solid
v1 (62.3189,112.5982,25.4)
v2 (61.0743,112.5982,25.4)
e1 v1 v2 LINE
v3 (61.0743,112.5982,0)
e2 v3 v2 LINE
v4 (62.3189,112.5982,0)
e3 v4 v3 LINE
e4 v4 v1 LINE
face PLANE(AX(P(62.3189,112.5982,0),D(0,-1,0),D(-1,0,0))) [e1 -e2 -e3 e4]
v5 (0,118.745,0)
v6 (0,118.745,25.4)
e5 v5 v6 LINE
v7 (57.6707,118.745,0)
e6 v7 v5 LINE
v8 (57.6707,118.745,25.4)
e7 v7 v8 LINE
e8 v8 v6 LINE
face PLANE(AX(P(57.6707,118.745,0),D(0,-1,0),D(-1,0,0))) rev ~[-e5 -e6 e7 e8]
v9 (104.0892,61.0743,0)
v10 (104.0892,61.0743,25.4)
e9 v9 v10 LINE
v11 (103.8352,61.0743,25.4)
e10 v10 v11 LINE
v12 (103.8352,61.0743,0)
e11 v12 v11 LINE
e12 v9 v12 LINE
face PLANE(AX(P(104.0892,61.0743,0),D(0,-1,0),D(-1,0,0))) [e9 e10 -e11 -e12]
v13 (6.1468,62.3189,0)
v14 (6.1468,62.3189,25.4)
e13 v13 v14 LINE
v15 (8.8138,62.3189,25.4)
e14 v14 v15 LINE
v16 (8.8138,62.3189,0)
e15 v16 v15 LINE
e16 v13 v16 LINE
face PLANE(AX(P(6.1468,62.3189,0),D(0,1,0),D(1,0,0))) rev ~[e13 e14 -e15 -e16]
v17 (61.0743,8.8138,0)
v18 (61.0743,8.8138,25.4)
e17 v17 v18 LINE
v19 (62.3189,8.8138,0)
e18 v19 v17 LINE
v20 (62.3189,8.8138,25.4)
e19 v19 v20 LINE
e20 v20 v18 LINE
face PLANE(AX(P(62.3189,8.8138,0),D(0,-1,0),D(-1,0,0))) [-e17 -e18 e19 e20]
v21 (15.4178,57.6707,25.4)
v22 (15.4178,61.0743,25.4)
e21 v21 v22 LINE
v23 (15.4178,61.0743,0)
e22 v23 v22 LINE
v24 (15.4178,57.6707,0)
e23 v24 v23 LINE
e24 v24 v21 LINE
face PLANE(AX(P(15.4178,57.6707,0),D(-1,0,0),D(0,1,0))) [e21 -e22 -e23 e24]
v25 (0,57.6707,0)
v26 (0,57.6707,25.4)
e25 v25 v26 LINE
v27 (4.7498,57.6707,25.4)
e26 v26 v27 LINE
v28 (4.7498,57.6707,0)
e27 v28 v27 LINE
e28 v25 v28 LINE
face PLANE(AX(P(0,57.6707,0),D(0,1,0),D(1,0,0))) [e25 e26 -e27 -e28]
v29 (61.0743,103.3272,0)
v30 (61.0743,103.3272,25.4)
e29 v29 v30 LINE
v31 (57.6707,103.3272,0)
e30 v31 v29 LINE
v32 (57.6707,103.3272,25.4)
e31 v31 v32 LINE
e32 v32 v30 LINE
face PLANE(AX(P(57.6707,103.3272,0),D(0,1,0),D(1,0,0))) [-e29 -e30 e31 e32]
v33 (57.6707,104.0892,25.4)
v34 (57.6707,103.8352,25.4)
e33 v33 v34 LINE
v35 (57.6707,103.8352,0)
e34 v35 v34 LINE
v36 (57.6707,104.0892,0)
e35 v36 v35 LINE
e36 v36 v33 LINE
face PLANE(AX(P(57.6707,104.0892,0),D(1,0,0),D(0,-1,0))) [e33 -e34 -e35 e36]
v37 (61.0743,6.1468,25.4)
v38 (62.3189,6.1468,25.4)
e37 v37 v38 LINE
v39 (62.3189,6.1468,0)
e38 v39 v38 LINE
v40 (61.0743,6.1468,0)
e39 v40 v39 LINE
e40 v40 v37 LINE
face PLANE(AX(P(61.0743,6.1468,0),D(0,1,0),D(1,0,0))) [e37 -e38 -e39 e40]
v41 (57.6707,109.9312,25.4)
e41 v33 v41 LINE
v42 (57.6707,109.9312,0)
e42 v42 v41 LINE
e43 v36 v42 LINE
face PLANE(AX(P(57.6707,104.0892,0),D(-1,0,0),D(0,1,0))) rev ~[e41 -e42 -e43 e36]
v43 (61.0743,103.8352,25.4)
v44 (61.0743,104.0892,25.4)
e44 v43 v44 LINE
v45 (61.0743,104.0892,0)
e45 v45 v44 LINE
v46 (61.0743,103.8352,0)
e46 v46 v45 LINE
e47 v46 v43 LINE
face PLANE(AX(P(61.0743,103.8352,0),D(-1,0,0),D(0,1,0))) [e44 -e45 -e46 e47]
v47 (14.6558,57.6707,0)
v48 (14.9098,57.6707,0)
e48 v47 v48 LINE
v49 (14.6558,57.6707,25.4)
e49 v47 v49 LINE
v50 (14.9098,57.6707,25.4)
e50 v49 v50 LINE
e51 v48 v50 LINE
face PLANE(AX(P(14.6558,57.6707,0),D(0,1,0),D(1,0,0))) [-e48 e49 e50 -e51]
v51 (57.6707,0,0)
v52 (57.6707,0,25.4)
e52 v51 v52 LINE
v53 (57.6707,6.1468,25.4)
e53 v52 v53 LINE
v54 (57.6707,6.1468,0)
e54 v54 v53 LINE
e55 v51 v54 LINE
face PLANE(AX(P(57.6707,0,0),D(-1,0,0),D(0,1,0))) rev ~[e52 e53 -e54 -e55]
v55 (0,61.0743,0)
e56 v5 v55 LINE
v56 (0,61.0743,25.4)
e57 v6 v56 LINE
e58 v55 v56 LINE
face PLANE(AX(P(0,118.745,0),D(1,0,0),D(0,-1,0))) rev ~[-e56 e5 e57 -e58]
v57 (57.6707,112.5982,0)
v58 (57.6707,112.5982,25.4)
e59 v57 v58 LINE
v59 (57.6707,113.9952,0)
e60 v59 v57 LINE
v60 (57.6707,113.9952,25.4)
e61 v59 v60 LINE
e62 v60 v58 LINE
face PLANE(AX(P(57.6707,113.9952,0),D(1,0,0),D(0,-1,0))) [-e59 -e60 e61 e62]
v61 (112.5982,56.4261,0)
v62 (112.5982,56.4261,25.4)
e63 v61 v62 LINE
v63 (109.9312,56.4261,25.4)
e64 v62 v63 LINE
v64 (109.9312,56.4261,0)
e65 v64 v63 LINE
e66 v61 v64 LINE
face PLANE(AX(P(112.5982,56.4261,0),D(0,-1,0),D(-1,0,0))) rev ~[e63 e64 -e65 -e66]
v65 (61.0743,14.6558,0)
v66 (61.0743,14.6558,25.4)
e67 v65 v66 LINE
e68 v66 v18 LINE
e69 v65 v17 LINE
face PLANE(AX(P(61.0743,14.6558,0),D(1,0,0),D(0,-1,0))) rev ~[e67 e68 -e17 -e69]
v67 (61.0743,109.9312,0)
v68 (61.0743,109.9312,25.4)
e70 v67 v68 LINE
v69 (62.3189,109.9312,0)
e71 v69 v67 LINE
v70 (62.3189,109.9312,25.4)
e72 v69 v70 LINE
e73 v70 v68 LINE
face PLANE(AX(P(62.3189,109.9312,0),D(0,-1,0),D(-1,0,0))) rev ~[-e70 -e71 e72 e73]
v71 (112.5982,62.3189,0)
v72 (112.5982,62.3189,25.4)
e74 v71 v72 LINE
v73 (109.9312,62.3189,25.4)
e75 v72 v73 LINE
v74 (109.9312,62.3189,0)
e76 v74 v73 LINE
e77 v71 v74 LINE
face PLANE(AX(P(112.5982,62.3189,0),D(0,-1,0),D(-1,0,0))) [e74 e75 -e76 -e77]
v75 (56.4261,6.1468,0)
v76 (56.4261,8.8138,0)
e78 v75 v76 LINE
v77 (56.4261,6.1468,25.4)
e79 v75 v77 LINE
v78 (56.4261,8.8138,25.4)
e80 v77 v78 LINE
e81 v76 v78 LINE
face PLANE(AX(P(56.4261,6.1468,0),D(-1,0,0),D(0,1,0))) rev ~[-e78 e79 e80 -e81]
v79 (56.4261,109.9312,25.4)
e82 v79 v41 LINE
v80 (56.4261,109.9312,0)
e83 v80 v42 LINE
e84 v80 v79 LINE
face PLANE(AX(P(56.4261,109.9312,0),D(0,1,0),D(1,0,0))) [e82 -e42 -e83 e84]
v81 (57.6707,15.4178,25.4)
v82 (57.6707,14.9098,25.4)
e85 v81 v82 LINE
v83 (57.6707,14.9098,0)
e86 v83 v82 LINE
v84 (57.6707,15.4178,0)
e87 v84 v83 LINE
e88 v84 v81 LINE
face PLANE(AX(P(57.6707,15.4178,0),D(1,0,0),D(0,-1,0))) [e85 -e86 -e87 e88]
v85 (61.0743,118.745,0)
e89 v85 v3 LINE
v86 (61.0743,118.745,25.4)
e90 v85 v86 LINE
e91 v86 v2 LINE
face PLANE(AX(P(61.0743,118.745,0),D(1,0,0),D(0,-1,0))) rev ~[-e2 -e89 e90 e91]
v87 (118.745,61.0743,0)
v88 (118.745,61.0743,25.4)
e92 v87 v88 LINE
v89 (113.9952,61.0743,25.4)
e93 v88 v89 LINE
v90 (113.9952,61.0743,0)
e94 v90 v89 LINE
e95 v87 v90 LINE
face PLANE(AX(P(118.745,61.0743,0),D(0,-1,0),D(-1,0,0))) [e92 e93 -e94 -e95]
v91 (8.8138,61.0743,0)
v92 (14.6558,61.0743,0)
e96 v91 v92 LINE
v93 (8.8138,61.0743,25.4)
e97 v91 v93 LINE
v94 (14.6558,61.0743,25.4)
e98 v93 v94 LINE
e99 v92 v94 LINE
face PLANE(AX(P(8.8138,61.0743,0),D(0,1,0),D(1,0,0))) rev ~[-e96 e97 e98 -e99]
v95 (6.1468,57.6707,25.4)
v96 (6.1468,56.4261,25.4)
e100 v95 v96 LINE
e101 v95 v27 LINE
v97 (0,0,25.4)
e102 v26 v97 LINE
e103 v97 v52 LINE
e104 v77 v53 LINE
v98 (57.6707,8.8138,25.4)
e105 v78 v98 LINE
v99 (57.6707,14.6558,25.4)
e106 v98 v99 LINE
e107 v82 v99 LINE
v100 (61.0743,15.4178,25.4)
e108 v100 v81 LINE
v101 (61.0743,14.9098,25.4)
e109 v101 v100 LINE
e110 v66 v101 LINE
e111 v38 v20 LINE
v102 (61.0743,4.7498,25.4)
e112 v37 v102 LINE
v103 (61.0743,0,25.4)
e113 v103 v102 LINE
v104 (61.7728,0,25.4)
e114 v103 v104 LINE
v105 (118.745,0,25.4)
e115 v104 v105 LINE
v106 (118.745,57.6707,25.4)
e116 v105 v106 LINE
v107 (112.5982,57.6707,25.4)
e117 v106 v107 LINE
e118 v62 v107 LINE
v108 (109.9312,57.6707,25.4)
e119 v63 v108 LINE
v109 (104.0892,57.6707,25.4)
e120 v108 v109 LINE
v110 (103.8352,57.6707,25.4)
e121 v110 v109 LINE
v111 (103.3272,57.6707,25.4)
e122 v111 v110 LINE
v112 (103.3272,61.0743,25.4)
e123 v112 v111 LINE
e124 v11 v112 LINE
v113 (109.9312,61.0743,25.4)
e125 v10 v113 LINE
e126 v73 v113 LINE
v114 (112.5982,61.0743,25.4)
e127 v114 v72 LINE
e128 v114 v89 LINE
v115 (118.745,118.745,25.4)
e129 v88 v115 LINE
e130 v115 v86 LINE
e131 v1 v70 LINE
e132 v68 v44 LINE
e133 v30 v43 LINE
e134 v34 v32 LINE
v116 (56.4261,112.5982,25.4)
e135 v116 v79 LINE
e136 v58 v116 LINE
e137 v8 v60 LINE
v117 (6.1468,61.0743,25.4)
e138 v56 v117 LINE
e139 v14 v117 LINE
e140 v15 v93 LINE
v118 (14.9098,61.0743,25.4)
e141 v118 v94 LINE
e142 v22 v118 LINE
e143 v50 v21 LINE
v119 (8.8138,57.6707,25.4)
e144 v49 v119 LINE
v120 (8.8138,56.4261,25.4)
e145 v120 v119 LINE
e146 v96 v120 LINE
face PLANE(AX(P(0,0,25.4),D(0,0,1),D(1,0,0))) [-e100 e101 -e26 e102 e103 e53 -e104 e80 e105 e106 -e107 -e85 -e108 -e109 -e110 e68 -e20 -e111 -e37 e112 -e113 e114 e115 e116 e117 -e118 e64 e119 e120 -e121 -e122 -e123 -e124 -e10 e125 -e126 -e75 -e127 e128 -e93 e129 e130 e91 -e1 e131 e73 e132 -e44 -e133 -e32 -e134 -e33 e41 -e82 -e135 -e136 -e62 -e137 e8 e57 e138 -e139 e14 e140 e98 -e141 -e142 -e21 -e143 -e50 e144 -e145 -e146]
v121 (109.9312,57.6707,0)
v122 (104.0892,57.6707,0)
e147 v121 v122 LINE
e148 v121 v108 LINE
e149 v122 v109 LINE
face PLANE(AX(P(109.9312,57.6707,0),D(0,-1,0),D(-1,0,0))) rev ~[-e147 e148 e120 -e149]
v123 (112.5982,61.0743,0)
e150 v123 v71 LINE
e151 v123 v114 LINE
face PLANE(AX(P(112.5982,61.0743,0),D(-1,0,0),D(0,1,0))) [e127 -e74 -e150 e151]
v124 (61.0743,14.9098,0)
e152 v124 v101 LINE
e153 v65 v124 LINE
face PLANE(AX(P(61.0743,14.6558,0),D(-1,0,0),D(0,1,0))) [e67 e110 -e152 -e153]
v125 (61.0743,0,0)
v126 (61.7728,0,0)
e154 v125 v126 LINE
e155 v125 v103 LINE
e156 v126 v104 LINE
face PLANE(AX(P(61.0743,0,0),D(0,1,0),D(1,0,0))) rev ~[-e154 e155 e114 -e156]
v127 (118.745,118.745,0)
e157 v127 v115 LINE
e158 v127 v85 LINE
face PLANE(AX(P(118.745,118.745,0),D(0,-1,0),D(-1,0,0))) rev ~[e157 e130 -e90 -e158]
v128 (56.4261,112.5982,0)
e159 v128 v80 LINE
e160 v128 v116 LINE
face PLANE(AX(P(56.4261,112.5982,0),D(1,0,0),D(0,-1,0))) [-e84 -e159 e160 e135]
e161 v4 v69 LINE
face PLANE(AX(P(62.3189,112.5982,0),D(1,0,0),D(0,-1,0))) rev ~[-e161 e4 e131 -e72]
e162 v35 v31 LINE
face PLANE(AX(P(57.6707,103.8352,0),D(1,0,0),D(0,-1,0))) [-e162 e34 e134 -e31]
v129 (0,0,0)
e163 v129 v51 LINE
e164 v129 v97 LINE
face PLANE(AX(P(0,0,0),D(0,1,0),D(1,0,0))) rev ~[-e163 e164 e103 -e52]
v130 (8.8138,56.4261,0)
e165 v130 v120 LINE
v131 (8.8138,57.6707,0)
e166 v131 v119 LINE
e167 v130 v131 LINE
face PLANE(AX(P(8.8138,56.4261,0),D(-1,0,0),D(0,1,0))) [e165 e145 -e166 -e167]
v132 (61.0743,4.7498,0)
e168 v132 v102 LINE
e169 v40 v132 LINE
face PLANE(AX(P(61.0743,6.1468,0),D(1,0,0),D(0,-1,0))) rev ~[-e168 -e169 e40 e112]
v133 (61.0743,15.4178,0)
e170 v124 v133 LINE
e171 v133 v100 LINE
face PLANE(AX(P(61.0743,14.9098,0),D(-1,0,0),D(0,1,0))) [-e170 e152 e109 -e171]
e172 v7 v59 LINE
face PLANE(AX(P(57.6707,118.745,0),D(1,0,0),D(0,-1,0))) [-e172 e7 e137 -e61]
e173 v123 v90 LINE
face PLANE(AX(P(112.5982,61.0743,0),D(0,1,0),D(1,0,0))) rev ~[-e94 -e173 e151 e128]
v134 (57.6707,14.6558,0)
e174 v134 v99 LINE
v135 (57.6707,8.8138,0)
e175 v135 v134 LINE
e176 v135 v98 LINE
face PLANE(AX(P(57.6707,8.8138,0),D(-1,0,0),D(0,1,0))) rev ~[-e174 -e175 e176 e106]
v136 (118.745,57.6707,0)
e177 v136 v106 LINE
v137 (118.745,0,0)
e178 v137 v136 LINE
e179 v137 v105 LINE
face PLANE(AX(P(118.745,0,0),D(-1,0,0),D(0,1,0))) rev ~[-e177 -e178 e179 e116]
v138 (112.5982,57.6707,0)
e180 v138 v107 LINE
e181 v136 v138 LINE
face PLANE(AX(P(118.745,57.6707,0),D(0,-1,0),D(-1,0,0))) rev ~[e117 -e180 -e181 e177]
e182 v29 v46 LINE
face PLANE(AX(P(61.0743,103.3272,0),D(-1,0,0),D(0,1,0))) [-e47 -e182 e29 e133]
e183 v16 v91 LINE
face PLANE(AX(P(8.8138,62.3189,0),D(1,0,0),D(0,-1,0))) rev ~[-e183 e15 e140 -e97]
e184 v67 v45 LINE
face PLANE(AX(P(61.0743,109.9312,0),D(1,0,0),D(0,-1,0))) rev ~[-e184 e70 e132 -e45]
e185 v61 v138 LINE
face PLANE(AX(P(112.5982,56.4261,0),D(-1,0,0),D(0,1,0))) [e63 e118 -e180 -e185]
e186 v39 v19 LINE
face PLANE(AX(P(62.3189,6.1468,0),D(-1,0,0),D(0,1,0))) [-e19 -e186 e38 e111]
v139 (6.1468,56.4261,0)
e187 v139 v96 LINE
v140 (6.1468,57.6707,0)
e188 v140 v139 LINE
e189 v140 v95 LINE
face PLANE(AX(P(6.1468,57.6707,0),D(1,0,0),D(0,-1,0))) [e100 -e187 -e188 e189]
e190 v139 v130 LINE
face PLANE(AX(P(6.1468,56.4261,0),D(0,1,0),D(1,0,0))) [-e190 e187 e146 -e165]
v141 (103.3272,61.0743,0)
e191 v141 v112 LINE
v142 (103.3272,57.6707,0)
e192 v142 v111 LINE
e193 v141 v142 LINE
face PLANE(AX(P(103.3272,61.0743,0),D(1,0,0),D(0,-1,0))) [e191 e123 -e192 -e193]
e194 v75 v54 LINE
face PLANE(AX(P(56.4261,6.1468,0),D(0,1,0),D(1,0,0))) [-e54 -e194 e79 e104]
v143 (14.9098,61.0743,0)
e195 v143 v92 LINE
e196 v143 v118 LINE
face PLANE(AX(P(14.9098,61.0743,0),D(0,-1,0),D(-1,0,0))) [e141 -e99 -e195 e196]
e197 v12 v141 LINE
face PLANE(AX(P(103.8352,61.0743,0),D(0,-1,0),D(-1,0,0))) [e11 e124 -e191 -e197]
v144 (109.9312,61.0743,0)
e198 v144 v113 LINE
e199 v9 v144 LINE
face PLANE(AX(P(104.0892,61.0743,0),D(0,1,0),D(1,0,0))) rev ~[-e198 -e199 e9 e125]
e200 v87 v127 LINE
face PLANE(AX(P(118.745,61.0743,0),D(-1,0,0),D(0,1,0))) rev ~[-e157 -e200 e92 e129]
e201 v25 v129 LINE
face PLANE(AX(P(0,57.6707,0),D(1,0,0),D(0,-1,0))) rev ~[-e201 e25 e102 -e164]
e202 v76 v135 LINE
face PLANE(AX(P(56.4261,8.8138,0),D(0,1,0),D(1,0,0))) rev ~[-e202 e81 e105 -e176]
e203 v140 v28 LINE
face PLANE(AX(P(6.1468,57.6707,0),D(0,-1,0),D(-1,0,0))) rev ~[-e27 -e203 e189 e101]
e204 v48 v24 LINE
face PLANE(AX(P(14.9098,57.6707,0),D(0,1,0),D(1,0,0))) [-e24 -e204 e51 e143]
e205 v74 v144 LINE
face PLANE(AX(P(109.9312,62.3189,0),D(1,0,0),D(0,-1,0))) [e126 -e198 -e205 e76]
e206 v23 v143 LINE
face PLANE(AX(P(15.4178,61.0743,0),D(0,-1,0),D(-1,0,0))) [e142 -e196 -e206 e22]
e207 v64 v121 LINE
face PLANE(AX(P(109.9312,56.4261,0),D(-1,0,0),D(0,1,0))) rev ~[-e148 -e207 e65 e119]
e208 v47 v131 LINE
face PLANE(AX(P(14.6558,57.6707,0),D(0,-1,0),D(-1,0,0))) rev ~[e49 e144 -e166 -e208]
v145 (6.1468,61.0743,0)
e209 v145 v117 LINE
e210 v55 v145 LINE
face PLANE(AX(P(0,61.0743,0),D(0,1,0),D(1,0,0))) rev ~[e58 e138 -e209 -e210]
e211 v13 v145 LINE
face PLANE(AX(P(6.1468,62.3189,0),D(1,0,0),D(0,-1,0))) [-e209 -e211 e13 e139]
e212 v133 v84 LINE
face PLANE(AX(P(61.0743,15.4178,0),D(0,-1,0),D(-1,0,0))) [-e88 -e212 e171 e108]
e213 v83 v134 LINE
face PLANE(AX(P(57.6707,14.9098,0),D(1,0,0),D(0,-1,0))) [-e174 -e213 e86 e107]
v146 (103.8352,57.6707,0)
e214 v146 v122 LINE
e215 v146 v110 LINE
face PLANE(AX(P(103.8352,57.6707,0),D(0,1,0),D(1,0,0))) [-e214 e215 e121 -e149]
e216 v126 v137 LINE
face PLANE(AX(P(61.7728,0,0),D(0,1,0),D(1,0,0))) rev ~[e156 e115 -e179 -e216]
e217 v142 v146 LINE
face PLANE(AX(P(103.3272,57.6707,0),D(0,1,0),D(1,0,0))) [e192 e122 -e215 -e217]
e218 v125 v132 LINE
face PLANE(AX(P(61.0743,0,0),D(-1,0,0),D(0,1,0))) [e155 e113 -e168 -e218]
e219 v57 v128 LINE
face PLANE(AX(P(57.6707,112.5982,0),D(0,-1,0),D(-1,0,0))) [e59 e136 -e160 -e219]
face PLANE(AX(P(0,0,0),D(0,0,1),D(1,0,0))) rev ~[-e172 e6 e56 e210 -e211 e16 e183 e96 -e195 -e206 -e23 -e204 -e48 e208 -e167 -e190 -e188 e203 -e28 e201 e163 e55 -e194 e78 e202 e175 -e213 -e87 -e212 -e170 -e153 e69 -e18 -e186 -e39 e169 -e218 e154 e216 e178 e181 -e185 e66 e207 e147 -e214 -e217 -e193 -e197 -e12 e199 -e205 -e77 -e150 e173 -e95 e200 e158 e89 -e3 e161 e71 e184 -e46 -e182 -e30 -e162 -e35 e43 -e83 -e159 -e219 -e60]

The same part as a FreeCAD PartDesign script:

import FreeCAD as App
import Part
import Sketcher

V = App.Vector
Q = App.Units.Quantity


def add_polygon(sketch, points):
    """Adds a closed chain of lines whose ends are joined by coincident constraints."""
    first, n = sketch.GeometryCount, len(points)
    for a, b in zip(points, points[1:] + points[:1]):
        sketch.addGeometry(Part.LineSegment(App.Vector(*a, 0), App.Vector(*b, 0)), False)
    for i in range(n):
        sketch.addConstraint(Sketcher.Constraint("Coincident", first + i, 2, first + (i + 1) % n, 1))

doc = App.newDocument("Part")
params = doc.addObject("Spreadsheet::Sheet", "Params")
for row, (alias, value) in enumerate([
    ("sketch1_width", "0.105 in"),
    ("sketch1_width2", "0.26 in"),
    ("sketch1_width3", "0.049 in"),
    ("sketch1_width4", "0.134 in"),
    ("sketch1_width5", "0.242 in"),
    ("pad1_length", "1 in"),
], start=1):
    params.set(f"A{row}", alias)
    params.set(f"B{row}", "=" + value)
    params.setAlias(f"B{row}", alias)

body = doc.addObject("PartDesign::Body", "Body")

# Sketch on XY plane
sketch1 = body.newObject("Sketcher::SketchObject", "Sketch")
sketch1.AttachmentSupport = (doc.getObject("XY_Plane"), [""])
sketch1.MapMode = "FlatFace"
add_polygon(sketch1, [(0, 57.7), (0, 0), (57.7, 0), (57.7, 6.1), (56.4, 6.1), (56.4, 8.8), (57.7, 8.8), (57.7, 15.4), (61.1, 15.4), (61.1, 8.8), (62.3, 8.8), (62.3, 6.1), (61.1, 6.1), (61.1, 0), (118.7, 0), (118.7, 57.7), (112.6, 57.7), (112.6, 56.4), (109.9, 56.4), (109.9, 57.7), (103.3, 57.7), (103.3, 61.1), (109.9, 61.1), (109.9, 62.3), (112.6, 62.3), (112.6, 61.1), (118.7, 61.1), (118.7, 118.7), (61.1, 118.7), (61.1, 112.6), (62.3, 112.6), (62.3, 109.9), (61.1, 109.9), (61.1, 103.3), (57.7, 103.3), (57.7, 109.9), (56.4, 109.9), (56.4, 112.6), (57.7, 112.6), (57.7, 118.7), (0, 118.7), (0, 61.1), (6.1, 61.1), (6.1, 62.3), (8.8, 62.3), (8.8, 61.1), (15.4, 61.1), (15.4, 57.7), (8.8, 57.7), (8.8, 56.4), (6.1, 56.4), (6.1, 57.7)])  # lines 0-51
sketch1.addConstraint([
    Sketcher.Constraint("Vertical", 0),
    Sketcher.Constraint("Horizontal", 1),
    Sketcher.Constraint("Vertical", 2),
    Sketcher.Constraint("Horizontal", 3),
    Sketcher.Constraint("Vertical", 4),
    Sketcher.Constraint("Horizontal", 5),
    Sketcher.Constraint("Vertical", 6),
    Sketcher.Constraint("Horizontal", 7),
    Sketcher.Constraint("Vertical", 8),
    Sketcher.Constraint("Horizontal", 9),
    Sketcher.Constraint("Vertical", 10),
    Sketcher.Constraint("Horizontal", 11),
    Sketcher.Constraint("Vertical", 12),
    Sketcher.Constraint("Horizontal", 13),
    Sketcher.Constraint("Vertical", 14),
    Sketcher.Constraint("Horizontal", 15),
    Sketcher.Constraint("Vertical", 16),
    Sketcher.Constraint("Horizontal", 17),
    Sketcher.Constraint("Vertical", 18),
    Sketcher.Constraint("Horizontal", 19),
    Sketcher.Constraint("Vertical", 20),
    Sketcher.Constraint("Horizontal", 21),
    Sketcher.Constraint("Vertical", 22),
    Sketcher.Constraint("Horizontal", 23),
    Sketcher.Constraint("Vertical", 24),
    Sketcher.Constraint("Horizontal", 25),
    Sketcher.Constraint("Vertical", 26),
    Sketcher.Constraint("Horizontal", 27),
    Sketcher.Constraint("Vertical", 28),
    Sketcher.Constraint("Horizontal", 29),
    Sketcher.Constraint("Vertical", 30),
    Sketcher.Constraint("Horizontal", 31),
    Sketcher.Constraint("Vertical", 32),
    Sketcher.Constraint("Horizontal", 33),
    Sketcher.Constraint("Vertical", 34),
    Sketcher.Constraint("Horizontal", 35),
    Sketcher.Constraint("Vertical", 36),
    Sketcher.Constraint("Horizontal", 37),
    Sketcher.Constraint("Vertical", 38),
    Sketcher.Constraint("Horizontal", 39),
    Sketcher.Constraint("Vertical", 40),
    Sketcher.Constraint("Horizontal", 41),
    Sketcher.Constraint("Vertical", 42),
    Sketcher.Constraint("Horizontal", 43),
    Sketcher.Constraint("Vertical", 44),
    Sketcher.Constraint("Horizontal", 45),
    Sketcher.Constraint("Vertical", 46),
    Sketcher.Constraint("Horizontal", 47),
    Sketcher.Constraint("Vertical", 48),
    Sketcher.Constraint("Horizontal", 49),
    Sketcher.Constraint("Vertical", 50),
    Sketcher.Constraint("Horizontal", 51),
    Sketcher.Constraint("Coincident", 0, 2, -1, 1),
    Sketcher.Constraint("PointOnObject", 12, 2, -1),
    Sketcher.Constraint("PointOnObject", 39, 2, -2),
    Sketcher.Constraint("Horizontal", 5, 2, 8, 2),
    Sketcher.Constraint("Horizontal", 3, 2, 10, 2),
    Sketcher.Constraint("Horizontal", 15, 2, 18, 2),
    Sketcher.Constraint("Horizontal", 21, 2, 24, 2),
    Sketcher.Constraint("Horizontal", 31, 2, 34, 2),
    Sketcher.Constraint("Horizontal", 29, 2, 36, 2),
    Sketcher.Constraint("Horizontal", 27, 2, 38, 2),
    Sketcher.Constraint("Horizontal", 25, 2, 40, 2),
    Sketcher.Constraint("Horizontal", 23, 2, 42, 2),
    Sketcher.Constraint("Horizontal", 41, 2, 44, 2),
    Sketcher.Constraint("Horizontal", 19, 2, 46, 2),
    Sketcher.Constraint("Horizontal", 17, 2, 48, 2),
    Sketcher.Constraint("Horizontal", 47, 2, 50, 2),
    Sketcher.Constraint("Vertical", 2, 2, 5, 2),
    Sketcher.Constraint("Vertical", 8, 2, 11, 2),
    Sketcher.Constraint("Vertical", 18, 2, 21, 2),
    Sketcher.Constraint("Vertical", 16, 2, 23, 2),
    Sketcher.Constraint("Vertical", 14, 2, 25, 2),
    Sketcher.Constraint("Vertical", 12, 2, 27, 2),
    Sketcher.Constraint("Vertical", 10, 2, 29, 2),
    Sketcher.Constraint("Vertical", 28, 2, 31, 2),
    Sketcher.Constraint("Vertical", 6, 2, 33, 2),
    Sketcher.Constraint("Vertical", 4, 2, 35, 2),
    Sketcher.Constraint("Vertical", 34, 2, 37, 2),
    Sketcher.Constraint("Vertical", 44, 2, 47, 2),
    Sketcher.Constraint("Vertical", 42, 2, 49, 2),
    Sketcher.Constraint("Equal", 5, 9),
    Sketcher.Constraint("Equal", 1, 13),
    Sketcher.Constraint("Equal", 25, 41),
    Sketcher.Constraint("Equal", 23, 43),
    Sketcher.Constraint("Equal", 21, 45),
    Sketcher.Constraint("Equal", 39, 0),
    Sketcher.Constraint("Equal", 51, 2),
    Sketcher.Constraint("Equal", 49, 4),
    Sketcher.Constraint("Equal", 47, 6),
    Sketcher.Constraint("Equal", 37, 16),
    Sketcher.Constraint("Equal", 33, 20),
    Sketcher.Constraint("Equal", 18, 22),
    Sketcher.Constraint("Equal", 14, 26),
    Sketcher.Constraint("Equal", 12, 28),
    Sketcher.Constraint("Equal", 10, 30),
    Sketcher.Constraint("Equal", 8, 32),
    Sketcher.Constraint("DistanceX", 17, 2, 17, 1, Q("0.105 in")),
    Sketcher.Constraint("DistanceX", -1, 1, 13, 2, Q("4.675 in")),
    Sketcher.Constraint("DistanceX", 19, 2, 19, 1, Q("0.26 in")),
    Sketcher.Constraint("DistanceX", 3, 2, 3, 1, Q("0.049 in")),
    Sketcher.Constraint("DistanceX", 7, 1, 7, 2, Q("0.134 in")),
    Sketcher.Constraint("DistanceX", 15, 2, 15, 1, Q("0.242 in")),
])
sketch1.setExpression("Constraints[149]", "Params.sketch1_width")
sketch1.setExpression("Constraints[151]", "Params.sketch1_width2")
sketch1.setExpression("Constraints[152]", "Params.sketch1_width3")
sketch1.setExpression("Constraints[153]", "Params.sketch1_width4")
sketch1.setExpression("Constraints[154]", "Params.sketch1_width5")
pad1 = body.newObject("PartDesign::Pad", "Pad")
pad1.Profile = sketch1
pad1.setExpression("Length", "Params.pad1_length")

doc.recompute()
